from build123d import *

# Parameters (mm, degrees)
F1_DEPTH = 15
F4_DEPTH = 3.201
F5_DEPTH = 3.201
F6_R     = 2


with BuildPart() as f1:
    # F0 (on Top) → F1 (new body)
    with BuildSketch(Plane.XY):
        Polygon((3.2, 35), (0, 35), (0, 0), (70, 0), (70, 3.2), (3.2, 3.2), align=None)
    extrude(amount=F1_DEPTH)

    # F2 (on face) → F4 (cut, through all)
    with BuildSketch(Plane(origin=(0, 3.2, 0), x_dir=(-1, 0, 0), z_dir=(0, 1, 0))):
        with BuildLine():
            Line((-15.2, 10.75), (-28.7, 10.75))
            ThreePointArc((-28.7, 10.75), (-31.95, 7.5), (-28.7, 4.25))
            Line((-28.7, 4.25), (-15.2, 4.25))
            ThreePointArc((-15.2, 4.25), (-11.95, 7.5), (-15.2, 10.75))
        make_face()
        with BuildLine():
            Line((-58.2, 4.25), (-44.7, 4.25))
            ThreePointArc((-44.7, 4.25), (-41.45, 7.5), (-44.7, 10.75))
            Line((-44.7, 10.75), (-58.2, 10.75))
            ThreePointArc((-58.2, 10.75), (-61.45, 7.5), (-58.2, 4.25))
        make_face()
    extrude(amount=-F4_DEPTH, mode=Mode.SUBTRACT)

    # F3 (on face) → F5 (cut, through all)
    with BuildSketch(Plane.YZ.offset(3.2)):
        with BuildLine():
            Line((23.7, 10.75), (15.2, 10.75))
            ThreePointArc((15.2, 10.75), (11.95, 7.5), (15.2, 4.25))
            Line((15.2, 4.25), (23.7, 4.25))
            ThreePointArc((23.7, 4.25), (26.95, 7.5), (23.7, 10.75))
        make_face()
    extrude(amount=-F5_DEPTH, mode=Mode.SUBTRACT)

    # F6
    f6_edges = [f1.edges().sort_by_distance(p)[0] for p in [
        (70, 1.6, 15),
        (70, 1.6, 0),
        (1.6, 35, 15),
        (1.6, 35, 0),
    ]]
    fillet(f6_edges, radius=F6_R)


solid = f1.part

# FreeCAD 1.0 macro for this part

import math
import FreeCAD as App
import Part
import Sketcher
Q = App.Units.Quantity


def edges_at(feature, points):
    """Names of the edges that pass closest to the given points."""
    edges = feature.Shape.Edges
    near = lambda p: min(range(len(edges)), key=lambda i: edges[i].distToShape(Part.Vertex(*p))[0])
    return sorted({f"Edge{near(p) + 1}" for p in points})

doc = App.newDocument("Part")
body = doc.addObject("PartDesign::Body", "Body")

sketch1 = body.newObject("Sketcher::SketchObject", "Sketch")
sketch1.AttachmentSupport = (doc.getObject("XY_Plane"), [""])
sketch1.MapMode = "FlatFace"
sketch1.addGeometry([
    Part.LineSegment(App.Vector(3.2, 35, 0), App.Vector(0, 35, 0)),
    Part.LineSegment(App.Vector(0, 35, 0), App.Vector(0, 0, 0)),
    Part.LineSegment(App.Vector(0, 0, 0), App.Vector(70, 0, 0)),
    Part.LineSegment(App.Vector(70, 0, 0), App.Vector(70, 3.2, 0)),
    Part.LineSegment(App.Vector(70, 3.2, 0), App.Vector(3.2, 3.2, 0)),
    Part.LineSegment(App.Vector(3.2, 3.2, 0), App.Vector(3.2, 35, 0)),
], False)
sketch1.addConstraint([
    Sketcher.Constraint("Coincident", 0, 2, 1, 1),
    Sketcher.Constraint("Coincident", 1, 2, 2, 1),
    Sketcher.Constraint("Coincident", 2, 2, 3, 1),
    Sketcher.Constraint("Coincident", 3, 2, 4, 1),
    Sketcher.Constraint("Coincident", 4, 2, 5, 1),
    Sketcher.Constraint("Coincident", 5, 2, 0, 1),
    Sketcher.Constraint("Horizontal", 0),
    Sketcher.Constraint("Vertical", 1),
    Sketcher.Constraint("Horizontal", 2),
    Sketcher.Constraint("Vertical", 3),
    Sketcher.Constraint("Horizontal", 4),
    Sketcher.Constraint("Vertical", 5),
    Sketcher.Constraint("Coincident", 1, 2, -1, 1),
    Sketcher.Constraint("Equal", 0, 3),
    Sketcher.Constraint("DistanceX", 2, 1, 2, 2, Q("70 mm")),
    Sketcher.Constraint("DistanceY", 1, 2, 1, 1, Q("35 mm")),
    Sketcher.Constraint("DistanceX", 0, 2, 0, 1, Q("3.2 mm")),
])
pad1 = body.newObject("PartDesign::Pad", "Pad")
pad1.Profile = sketch1
pad1.Length = 15

sketch2 = body.newObject("Sketcher::SketchObject", "Sketch001")
sketch2.AttachmentSupport = (doc.getObject("XZ_Plane"), [""])
sketch2.MapMode = "FlatFace"
sketch2.AttachmentOffset = App.Placement(App.Vector(0, 0, -3.2), App.Rotation())
sketch2.addGeometry([
    Part.LineSegment(App.Vector(15.2, 10.8, 0), App.Vector(28.7, 10.8, 0)),
    Part.ArcOfCircle(Part.Circle(App.Vector(28.7, 7.5, 0), App.Vector(0, 0, 1), 3.2), math.radians(-90), math.radians(90)),
    Part.LineSegment(App.Vector(28.7, 4.2, 0), App.Vector(15.2, 4.2, 0)),
    Part.ArcOfCircle(Part.Circle(App.Vector(15.2, 7.5, 0), App.Vector(0, 0, 1), 3.2), math.radians(90), math.radians(270)),
    Part.LineSegment(App.Vector(58.2, 4.2, 0), App.Vector(44.7, 4.2, 0)),
    Part.ArcOfCircle(Part.Circle(App.Vector(44.7, 7.5, 0), App.Vector(0, 0, 1), 3.2), math.radians(90), math.radians(270)),
    Part.LineSegment(App.Vector(44.7, 10.8, 0), App.Vector(58.2, 10.8, 0)),
    Part.ArcOfCircle(Part.Circle(App.Vector(58.2, 7.5, 0), App.Vector(0, 0, 1), 3.2), math.radians(-90), math.radians(90)),
], False)
sketch2.addConstraint([
    Sketcher.Constraint("Tangent", 0, 2, 1, 2),
    Sketcher.Constraint("Tangent", 1, 1, 2, 1),
    Sketcher.Constraint("Tangent", 2, 2, 3, 2),
    Sketcher.Constraint("Tangent", 3, 1, 0, 1),
    Sketcher.Constraint("Tangent", 4, 2, 5, 2),
    Sketcher.Constraint("Tangent", 5, 1, 6, 1),
    Sketcher.Constraint("Tangent", 6, 2, 7, 2),
    Sketcher.Constraint("Tangent", 7, 1, 4, 1),
    Sketcher.Constraint("Horizontal", 0),
    Sketcher.Constraint("Horizontal", 2),
    Sketcher.Constraint("Horizontal", 4),
    Sketcher.Constraint("Horizontal", 6),
    Sketcher.Constraint("Equal", 3, 5),
    Sketcher.Constraint("Horizontal", 3, 3, 5, 3),
    Sketcher.Constraint("Equal", 2, 4),
    Sketcher.Constraint("Radius", 1, Q("3.25 mm")),
    Sketcher.Constraint("DistanceX", 0, 1, 0, 2, Q("13.5 mm")),
    Sketcher.Constraint("DistanceX", 1, 3, 5, 3, Q("16 mm")),
    Sketcher.Constraint("DistanceX", -1, 1, 1, 3, Q("28.7 mm")),
    Sketcher.Constraint("DistanceY", -1, 1, 1, 3, Q("7.5 mm")),
])
pocket1 = body.newObject("PartDesign::Pocket", "Pocket")
pocket1.Profile = sketch2
pocket1.Type = "ThroughAll"
pocket1.Reversed = True

sketch3 = body.newObject("Sketcher::SketchObject", "Sketch002")
sketch3.AttachmentSupport = (doc.getObject("YZ_Plane"), [""])
sketch3.MapMode = "FlatFace"
sketch3.AttachmentOffset = App.Placement(App.Vector(0, 0, 3.2), App.Rotation())
sketch3.addGeometry([
    Part.LineSegment(App.Vector(23.7, 10.8, 0), App.Vector(15.2, 10.8, 0)),
    Part.ArcOfCircle(Part.Circle(App.Vector(15.2, 7.5, 0), App.Vector(0, 0, 1), 3.2), math.radians(90), math.radians(270)),
    Part.LineSegment(App.Vector(15.2, 4.2, 0), App.Vector(23.7, 4.2, 0)),
    Part.ArcOfCircle(Part.Circle(App.Vector(23.7, 7.5, 0), App.Vector(0, 0, 1), 3.2), math.radians(-90), math.radians(90)),
], False)
sketch3.addConstraint([
    Sketcher.Constraint("Tangent", 0, 2, 1, 1),
    Sketcher.Constraint("Tangent", 1, 2, 2, 1),
    Sketcher.Constraint("Tangent", 2, 2, 3, 1),
    Sketcher.Constraint("Tangent", 3, 2, 0, 1),
    Sketcher.Constraint("Horizontal", 0),
    Sketcher.Constraint("Horizontal", 2),
    Sketcher.Constraint("Radius", 1, Q("3.25 mm")),
    Sketcher.Constraint("DistanceX", 0, 2, 0, 1, Q("8.5 mm")),
    Sketcher.Constraint("DistanceX", -1, 1, 1, 3, Q("15.2 mm")),
    Sketcher.Constraint("DistanceY", -1, 1, 1, 3, Q("7.5 mm")),
])
pocket2 = body.newObject("PartDesign::Pocket", "Pocket001")
pocket2.Profile = sketch3
pocket2.Type = "ThroughAll"
doc.recompute()

fillet = body.newObject("PartDesign::Fillet", "Fillet")
fillet.Base = (pocket2, edges_at(pocket2, [
    (70, 1.6, 15),
    (70, 1.6, 0),
    (1.6, 35, 15),
    (1.6, 35, 0),
]))
fillet.Radius = 2

doc.recompute()
